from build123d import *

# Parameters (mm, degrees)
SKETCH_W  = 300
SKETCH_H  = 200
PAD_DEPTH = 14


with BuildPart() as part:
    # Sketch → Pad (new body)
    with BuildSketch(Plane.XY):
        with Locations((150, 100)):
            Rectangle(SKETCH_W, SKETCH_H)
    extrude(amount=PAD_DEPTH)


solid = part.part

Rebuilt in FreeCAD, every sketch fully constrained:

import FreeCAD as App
import Part
import Sketcher
from FreeCAD import Vector


def add_polygon(sketch, points):
    """Adds a closed chain of lines whose ends are joined by coincident constraints."""
    first, n = sketch.GeometryCount, len(points)
    for a, b in zip(points, points[1:] + points[:1]):
        sketch.addGeometry(Part.LineSegment(App.Vector(*a, 0), App.Vector(*b, 0)), False)
    for i in range(n):
        sketch.addConstraint(Sketcher.Constraint("Coincident", first + i, 2, first + (i + 1) % n, 1))

doc = App.newDocument("Part")
body = doc.addObject("PartDesign::Body", "Body")

# Sketch on XY plane
sketch1 = body.newObject("Sketcher::SketchObject", "Sketch")
sketch1.AttachmentSupport = (doc.getObject("XY_Plane"), [""])
sketch1.MapMode = "FlatFace"
add_polygon(sketch1, [(0, 200), (0, 0), (300, 0), (300, 200)])  # lines 0-3
sketch1.addConstraint([
    Sketcher.Constraint("Vertical", 0),
    Sketcher.Constraint("Horizontal", 1),
    Sketcher.Constraint("Vertical", 2),
    Sketcher.Constraint("Horizontal", 3),
    Sketcher.Constraint("Coincident", 0, 2, -1, 1),
    Sketcher.Constraint("DistanceX", 1, 1, 1, 2, 300.0),
    Sketcher.Constraint("DistanceY", 0, 2, 0, 1, 200.0),
])
pad1 = body.newObject("PartDesign::Pad", "Pad")
pad1.Profile = sketch1
pad1.Length = 14

doc.recompute()
